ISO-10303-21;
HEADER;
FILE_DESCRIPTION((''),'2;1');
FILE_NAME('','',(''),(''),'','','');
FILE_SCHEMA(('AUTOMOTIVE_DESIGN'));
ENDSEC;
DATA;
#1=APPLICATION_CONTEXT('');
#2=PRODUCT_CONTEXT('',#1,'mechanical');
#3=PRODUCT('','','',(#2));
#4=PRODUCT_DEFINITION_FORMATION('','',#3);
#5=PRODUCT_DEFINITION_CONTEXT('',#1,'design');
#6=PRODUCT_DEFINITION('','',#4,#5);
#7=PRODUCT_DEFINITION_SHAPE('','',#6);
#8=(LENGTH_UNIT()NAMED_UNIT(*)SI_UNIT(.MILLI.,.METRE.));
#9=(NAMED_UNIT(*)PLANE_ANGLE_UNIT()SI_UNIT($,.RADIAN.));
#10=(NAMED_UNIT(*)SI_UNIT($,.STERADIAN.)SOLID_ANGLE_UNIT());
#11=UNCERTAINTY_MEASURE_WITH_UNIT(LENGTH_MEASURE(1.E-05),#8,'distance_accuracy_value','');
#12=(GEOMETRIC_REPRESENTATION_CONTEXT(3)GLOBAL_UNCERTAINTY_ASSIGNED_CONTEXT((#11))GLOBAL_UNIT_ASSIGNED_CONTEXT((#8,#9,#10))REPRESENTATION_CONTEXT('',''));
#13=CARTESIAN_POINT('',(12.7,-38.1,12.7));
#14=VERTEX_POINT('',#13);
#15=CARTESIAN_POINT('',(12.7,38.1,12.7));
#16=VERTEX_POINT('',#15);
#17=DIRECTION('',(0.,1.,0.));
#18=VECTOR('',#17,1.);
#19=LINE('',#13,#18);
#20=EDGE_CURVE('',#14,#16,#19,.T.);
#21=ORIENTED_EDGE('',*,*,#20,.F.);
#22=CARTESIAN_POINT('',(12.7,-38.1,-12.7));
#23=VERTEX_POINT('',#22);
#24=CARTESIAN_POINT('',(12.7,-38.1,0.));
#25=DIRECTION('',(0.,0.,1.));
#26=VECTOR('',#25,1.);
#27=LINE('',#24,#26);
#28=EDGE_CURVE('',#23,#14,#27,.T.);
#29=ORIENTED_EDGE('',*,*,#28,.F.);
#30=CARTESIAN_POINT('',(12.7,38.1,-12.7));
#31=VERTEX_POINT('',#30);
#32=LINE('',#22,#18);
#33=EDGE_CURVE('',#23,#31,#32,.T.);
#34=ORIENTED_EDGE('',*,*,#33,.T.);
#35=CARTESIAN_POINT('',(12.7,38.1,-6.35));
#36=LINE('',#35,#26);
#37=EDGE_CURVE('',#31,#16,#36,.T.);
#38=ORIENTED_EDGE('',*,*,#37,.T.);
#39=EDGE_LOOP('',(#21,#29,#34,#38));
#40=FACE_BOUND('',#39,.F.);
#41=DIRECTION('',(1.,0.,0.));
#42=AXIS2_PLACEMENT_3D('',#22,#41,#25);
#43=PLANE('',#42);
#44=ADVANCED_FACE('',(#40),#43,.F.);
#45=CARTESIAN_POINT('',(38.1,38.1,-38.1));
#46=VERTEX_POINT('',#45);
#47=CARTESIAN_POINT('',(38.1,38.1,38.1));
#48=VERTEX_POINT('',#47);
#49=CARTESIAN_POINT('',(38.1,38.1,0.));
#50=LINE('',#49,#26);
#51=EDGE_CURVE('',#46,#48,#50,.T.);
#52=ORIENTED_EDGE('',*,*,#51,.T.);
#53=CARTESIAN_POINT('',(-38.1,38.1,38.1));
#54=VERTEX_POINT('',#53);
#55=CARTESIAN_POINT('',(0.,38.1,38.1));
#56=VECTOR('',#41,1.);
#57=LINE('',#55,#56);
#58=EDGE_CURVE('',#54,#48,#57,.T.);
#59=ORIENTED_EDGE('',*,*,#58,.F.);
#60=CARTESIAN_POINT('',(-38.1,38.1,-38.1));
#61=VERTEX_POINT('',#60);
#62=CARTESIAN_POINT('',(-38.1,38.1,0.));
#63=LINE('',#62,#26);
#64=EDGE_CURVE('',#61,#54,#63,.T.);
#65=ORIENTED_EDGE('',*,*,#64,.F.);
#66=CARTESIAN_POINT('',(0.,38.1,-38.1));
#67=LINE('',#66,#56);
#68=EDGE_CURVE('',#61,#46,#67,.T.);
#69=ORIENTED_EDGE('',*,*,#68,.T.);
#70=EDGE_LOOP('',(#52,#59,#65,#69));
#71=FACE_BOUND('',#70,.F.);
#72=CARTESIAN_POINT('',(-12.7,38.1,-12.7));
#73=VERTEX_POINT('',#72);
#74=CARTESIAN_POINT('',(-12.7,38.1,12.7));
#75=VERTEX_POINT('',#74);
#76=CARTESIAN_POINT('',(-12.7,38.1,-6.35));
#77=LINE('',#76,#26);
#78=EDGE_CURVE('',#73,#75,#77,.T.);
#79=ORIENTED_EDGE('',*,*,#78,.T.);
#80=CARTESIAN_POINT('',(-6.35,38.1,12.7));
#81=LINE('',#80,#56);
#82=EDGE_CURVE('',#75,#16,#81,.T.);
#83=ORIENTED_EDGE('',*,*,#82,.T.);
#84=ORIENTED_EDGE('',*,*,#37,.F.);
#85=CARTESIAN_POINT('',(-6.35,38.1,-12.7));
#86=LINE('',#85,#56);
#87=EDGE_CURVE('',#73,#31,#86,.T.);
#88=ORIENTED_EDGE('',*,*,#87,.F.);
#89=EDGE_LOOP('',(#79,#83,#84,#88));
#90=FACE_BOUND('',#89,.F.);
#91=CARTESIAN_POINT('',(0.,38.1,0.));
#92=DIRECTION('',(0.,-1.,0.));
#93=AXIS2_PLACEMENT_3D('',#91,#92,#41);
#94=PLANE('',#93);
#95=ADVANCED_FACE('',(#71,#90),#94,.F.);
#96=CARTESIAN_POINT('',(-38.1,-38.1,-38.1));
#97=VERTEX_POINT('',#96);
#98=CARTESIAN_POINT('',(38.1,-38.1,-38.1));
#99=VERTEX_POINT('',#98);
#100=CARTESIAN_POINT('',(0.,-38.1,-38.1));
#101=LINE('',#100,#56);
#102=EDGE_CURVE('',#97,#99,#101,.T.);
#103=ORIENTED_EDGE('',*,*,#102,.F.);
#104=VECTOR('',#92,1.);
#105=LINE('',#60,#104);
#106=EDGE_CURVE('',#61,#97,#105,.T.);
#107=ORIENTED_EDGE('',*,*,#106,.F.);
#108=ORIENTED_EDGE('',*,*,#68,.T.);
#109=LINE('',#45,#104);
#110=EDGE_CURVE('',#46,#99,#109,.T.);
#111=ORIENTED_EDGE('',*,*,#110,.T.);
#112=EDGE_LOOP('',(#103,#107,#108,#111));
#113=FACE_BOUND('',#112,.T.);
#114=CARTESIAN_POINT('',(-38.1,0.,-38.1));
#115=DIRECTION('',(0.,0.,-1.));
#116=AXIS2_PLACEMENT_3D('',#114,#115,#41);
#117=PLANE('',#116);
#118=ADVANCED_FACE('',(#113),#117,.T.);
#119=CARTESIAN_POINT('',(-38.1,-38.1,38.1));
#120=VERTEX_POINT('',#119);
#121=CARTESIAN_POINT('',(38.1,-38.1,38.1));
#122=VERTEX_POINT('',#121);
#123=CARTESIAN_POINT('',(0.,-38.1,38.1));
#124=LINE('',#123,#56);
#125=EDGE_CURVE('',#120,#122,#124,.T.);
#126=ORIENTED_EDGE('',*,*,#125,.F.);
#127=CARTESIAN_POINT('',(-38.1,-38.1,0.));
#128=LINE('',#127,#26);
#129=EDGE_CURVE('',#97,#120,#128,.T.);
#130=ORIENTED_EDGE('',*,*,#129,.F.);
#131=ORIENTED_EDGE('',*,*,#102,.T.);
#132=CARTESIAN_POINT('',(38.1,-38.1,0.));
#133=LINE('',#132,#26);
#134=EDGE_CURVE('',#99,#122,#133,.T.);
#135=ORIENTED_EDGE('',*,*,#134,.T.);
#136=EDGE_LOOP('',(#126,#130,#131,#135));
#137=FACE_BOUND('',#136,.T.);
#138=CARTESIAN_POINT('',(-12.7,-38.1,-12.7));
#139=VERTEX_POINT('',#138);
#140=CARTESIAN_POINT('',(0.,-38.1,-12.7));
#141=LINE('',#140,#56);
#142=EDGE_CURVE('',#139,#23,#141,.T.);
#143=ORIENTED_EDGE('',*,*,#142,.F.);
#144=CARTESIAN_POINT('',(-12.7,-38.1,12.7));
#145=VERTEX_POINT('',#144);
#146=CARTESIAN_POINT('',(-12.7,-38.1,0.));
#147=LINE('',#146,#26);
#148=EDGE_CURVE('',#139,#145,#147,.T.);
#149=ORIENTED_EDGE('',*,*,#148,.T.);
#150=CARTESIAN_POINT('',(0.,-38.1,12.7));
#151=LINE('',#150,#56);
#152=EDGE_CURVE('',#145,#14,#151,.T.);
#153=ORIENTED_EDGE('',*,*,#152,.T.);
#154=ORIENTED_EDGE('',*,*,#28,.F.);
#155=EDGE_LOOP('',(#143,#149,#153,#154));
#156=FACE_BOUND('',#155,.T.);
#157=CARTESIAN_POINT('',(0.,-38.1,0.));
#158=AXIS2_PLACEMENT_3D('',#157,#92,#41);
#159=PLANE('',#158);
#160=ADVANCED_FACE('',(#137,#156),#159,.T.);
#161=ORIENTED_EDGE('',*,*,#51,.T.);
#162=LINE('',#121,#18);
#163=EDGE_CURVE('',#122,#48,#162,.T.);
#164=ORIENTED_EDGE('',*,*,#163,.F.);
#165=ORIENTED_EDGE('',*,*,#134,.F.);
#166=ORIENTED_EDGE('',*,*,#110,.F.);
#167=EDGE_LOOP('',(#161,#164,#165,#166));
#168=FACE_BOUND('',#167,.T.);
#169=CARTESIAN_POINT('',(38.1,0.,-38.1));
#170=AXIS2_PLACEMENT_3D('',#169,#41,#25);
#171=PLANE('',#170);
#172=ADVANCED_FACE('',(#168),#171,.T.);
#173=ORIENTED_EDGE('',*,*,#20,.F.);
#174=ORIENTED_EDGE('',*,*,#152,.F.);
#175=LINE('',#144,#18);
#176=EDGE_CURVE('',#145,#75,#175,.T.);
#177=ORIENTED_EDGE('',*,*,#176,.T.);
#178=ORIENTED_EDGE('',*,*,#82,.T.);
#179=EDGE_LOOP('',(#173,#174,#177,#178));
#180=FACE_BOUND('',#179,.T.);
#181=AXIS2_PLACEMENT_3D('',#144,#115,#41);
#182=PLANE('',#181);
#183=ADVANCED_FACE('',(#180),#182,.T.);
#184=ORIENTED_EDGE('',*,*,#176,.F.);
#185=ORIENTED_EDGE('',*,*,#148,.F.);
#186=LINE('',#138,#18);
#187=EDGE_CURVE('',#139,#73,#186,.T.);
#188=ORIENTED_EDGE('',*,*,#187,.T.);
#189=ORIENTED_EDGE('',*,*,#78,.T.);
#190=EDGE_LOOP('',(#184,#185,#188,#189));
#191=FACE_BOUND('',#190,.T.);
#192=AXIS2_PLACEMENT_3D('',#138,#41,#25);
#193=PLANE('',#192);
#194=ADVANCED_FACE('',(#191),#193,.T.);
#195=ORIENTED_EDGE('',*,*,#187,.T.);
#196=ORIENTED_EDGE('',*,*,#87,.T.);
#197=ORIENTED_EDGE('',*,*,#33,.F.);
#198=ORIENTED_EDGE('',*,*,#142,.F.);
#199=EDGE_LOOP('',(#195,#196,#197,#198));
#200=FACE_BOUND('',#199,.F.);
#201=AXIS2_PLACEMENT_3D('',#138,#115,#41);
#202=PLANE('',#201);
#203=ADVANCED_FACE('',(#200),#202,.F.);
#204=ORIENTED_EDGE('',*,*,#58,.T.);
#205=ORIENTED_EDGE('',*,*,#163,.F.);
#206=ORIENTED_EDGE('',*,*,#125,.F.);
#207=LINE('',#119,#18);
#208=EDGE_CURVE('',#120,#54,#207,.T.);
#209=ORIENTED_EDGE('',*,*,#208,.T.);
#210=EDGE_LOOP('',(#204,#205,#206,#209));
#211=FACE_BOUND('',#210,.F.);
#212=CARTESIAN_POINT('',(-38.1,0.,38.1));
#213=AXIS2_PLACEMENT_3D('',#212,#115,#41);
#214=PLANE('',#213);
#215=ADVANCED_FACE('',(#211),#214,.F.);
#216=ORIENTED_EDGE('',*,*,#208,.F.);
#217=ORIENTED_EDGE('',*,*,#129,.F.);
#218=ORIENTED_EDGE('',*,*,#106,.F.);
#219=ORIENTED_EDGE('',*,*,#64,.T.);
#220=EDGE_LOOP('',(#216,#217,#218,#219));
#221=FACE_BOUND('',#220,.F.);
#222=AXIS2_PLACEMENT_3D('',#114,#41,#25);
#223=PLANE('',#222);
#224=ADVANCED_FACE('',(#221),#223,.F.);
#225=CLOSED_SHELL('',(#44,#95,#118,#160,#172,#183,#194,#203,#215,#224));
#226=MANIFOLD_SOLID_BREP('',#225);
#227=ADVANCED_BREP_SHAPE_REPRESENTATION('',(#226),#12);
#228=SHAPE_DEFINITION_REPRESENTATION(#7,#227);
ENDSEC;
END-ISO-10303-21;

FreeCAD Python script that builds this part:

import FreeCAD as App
import Part
import Sketcher

V = App.Vector
Q = App.Units.Quantity


def add_polygon(sketch, points):
    """Adds a closed chain of lines whose ends are joined by coincident constraints."""
    first, n = sketch.GeometryCount, len(points)
    for a, b in zip(points, points[1:] + points[:1]):
        sketch.addGeometry(Part.LineSegment(App.Vector(*a, 0), App.Vector(*b, 0)), False)
    for i in range(n):
        sketch.addConstraint(Sketcher.Constraint("Coincident", first + i, 2, first + (i + 1) % n, 1))

doc = App.newDocument("Part")
body = doc.addObject("PartDesign::Body", "Body")

sketch1 = body.newObject("Sketcher::SketchObject", "Sketch")
sketch1.AttachmentSupport = (doc.getObject("XZ_Plane"), [""])
sketch1.MapMode = "FlatFace"
add_polygon(sketch1, [(-38, 38), (-38, -38), (38, -38), (38, 38)])
sketch1.addConstraint(Sketcher.Constraint("Vertical", 0))
sketch1.addConstraint(Sketcher.Constraint("Horizontal", 1))
sketch1.addConstraint(Sketcher.Constraint("Vertical", 2))
sketch1.addConstraint(Sketcher.Constraint("Horizontal", 3))
sketch1.addConstraint(Sketcher.Constraint("Symmetric", 0, 2, 2, 2, -1, 1))
sketch1.addConstraint(Sketcher.Constraint("Equal", 3, 0))
sketch1.addConstraint(Sketcher.Constraint("DistanceX", 1, 1, 1, 2, Q("3 in")))
pad1 = body.newObject("PartDesign::Pad", "Pad")
pad1.Profile = sketch1
pad1.Length = Q("3 in")
pad1.Midplane = True

sketch2 = body.newObject("Sketcher::SketchObject", "Sketch001")
sketch2.AttachmentSupport = (doc.getObject("XZ_Plane"), [""])
sketch2.MapMode = "FlatFace"
sketch2.AttachmentOffset = App.Placement(V(0, 0, 1.5 * 25.4), App.Rotation())
add_polygon(sketch2, [(-13, 13), (-13, -13), (13, -13), (13, 13)])
sketch2.addConstraint(Sketcher.Constraint("Vertical", 0))
sketch2.addConstraint(Sketcher.Constraint("Horizontal", 1))
sketch2.addConstraint(Sketcher.Constraint("Vertical", 2))
sketch2.addConstraint(Sketcher.Constraint("Horizontal", 3))
sketch2.addConstraint(Sketcher.Constraint("Symmetric", 0, 2, 2, 2, -1, 1))
sketch2.addConstraint(Sketcher.Constraint("Equal", 3, 0))
sketch2.addConstraint(Sketcher.Constraint("DistanceX", 1, 1, 1, 2, Q("1 in")))
pocket1 = body.newObject("PartDesign::Pocket", "Pocket")
pocket1.Profile = sketch2
pocket1.Type = "ThroughAll"

doc.recompute()
